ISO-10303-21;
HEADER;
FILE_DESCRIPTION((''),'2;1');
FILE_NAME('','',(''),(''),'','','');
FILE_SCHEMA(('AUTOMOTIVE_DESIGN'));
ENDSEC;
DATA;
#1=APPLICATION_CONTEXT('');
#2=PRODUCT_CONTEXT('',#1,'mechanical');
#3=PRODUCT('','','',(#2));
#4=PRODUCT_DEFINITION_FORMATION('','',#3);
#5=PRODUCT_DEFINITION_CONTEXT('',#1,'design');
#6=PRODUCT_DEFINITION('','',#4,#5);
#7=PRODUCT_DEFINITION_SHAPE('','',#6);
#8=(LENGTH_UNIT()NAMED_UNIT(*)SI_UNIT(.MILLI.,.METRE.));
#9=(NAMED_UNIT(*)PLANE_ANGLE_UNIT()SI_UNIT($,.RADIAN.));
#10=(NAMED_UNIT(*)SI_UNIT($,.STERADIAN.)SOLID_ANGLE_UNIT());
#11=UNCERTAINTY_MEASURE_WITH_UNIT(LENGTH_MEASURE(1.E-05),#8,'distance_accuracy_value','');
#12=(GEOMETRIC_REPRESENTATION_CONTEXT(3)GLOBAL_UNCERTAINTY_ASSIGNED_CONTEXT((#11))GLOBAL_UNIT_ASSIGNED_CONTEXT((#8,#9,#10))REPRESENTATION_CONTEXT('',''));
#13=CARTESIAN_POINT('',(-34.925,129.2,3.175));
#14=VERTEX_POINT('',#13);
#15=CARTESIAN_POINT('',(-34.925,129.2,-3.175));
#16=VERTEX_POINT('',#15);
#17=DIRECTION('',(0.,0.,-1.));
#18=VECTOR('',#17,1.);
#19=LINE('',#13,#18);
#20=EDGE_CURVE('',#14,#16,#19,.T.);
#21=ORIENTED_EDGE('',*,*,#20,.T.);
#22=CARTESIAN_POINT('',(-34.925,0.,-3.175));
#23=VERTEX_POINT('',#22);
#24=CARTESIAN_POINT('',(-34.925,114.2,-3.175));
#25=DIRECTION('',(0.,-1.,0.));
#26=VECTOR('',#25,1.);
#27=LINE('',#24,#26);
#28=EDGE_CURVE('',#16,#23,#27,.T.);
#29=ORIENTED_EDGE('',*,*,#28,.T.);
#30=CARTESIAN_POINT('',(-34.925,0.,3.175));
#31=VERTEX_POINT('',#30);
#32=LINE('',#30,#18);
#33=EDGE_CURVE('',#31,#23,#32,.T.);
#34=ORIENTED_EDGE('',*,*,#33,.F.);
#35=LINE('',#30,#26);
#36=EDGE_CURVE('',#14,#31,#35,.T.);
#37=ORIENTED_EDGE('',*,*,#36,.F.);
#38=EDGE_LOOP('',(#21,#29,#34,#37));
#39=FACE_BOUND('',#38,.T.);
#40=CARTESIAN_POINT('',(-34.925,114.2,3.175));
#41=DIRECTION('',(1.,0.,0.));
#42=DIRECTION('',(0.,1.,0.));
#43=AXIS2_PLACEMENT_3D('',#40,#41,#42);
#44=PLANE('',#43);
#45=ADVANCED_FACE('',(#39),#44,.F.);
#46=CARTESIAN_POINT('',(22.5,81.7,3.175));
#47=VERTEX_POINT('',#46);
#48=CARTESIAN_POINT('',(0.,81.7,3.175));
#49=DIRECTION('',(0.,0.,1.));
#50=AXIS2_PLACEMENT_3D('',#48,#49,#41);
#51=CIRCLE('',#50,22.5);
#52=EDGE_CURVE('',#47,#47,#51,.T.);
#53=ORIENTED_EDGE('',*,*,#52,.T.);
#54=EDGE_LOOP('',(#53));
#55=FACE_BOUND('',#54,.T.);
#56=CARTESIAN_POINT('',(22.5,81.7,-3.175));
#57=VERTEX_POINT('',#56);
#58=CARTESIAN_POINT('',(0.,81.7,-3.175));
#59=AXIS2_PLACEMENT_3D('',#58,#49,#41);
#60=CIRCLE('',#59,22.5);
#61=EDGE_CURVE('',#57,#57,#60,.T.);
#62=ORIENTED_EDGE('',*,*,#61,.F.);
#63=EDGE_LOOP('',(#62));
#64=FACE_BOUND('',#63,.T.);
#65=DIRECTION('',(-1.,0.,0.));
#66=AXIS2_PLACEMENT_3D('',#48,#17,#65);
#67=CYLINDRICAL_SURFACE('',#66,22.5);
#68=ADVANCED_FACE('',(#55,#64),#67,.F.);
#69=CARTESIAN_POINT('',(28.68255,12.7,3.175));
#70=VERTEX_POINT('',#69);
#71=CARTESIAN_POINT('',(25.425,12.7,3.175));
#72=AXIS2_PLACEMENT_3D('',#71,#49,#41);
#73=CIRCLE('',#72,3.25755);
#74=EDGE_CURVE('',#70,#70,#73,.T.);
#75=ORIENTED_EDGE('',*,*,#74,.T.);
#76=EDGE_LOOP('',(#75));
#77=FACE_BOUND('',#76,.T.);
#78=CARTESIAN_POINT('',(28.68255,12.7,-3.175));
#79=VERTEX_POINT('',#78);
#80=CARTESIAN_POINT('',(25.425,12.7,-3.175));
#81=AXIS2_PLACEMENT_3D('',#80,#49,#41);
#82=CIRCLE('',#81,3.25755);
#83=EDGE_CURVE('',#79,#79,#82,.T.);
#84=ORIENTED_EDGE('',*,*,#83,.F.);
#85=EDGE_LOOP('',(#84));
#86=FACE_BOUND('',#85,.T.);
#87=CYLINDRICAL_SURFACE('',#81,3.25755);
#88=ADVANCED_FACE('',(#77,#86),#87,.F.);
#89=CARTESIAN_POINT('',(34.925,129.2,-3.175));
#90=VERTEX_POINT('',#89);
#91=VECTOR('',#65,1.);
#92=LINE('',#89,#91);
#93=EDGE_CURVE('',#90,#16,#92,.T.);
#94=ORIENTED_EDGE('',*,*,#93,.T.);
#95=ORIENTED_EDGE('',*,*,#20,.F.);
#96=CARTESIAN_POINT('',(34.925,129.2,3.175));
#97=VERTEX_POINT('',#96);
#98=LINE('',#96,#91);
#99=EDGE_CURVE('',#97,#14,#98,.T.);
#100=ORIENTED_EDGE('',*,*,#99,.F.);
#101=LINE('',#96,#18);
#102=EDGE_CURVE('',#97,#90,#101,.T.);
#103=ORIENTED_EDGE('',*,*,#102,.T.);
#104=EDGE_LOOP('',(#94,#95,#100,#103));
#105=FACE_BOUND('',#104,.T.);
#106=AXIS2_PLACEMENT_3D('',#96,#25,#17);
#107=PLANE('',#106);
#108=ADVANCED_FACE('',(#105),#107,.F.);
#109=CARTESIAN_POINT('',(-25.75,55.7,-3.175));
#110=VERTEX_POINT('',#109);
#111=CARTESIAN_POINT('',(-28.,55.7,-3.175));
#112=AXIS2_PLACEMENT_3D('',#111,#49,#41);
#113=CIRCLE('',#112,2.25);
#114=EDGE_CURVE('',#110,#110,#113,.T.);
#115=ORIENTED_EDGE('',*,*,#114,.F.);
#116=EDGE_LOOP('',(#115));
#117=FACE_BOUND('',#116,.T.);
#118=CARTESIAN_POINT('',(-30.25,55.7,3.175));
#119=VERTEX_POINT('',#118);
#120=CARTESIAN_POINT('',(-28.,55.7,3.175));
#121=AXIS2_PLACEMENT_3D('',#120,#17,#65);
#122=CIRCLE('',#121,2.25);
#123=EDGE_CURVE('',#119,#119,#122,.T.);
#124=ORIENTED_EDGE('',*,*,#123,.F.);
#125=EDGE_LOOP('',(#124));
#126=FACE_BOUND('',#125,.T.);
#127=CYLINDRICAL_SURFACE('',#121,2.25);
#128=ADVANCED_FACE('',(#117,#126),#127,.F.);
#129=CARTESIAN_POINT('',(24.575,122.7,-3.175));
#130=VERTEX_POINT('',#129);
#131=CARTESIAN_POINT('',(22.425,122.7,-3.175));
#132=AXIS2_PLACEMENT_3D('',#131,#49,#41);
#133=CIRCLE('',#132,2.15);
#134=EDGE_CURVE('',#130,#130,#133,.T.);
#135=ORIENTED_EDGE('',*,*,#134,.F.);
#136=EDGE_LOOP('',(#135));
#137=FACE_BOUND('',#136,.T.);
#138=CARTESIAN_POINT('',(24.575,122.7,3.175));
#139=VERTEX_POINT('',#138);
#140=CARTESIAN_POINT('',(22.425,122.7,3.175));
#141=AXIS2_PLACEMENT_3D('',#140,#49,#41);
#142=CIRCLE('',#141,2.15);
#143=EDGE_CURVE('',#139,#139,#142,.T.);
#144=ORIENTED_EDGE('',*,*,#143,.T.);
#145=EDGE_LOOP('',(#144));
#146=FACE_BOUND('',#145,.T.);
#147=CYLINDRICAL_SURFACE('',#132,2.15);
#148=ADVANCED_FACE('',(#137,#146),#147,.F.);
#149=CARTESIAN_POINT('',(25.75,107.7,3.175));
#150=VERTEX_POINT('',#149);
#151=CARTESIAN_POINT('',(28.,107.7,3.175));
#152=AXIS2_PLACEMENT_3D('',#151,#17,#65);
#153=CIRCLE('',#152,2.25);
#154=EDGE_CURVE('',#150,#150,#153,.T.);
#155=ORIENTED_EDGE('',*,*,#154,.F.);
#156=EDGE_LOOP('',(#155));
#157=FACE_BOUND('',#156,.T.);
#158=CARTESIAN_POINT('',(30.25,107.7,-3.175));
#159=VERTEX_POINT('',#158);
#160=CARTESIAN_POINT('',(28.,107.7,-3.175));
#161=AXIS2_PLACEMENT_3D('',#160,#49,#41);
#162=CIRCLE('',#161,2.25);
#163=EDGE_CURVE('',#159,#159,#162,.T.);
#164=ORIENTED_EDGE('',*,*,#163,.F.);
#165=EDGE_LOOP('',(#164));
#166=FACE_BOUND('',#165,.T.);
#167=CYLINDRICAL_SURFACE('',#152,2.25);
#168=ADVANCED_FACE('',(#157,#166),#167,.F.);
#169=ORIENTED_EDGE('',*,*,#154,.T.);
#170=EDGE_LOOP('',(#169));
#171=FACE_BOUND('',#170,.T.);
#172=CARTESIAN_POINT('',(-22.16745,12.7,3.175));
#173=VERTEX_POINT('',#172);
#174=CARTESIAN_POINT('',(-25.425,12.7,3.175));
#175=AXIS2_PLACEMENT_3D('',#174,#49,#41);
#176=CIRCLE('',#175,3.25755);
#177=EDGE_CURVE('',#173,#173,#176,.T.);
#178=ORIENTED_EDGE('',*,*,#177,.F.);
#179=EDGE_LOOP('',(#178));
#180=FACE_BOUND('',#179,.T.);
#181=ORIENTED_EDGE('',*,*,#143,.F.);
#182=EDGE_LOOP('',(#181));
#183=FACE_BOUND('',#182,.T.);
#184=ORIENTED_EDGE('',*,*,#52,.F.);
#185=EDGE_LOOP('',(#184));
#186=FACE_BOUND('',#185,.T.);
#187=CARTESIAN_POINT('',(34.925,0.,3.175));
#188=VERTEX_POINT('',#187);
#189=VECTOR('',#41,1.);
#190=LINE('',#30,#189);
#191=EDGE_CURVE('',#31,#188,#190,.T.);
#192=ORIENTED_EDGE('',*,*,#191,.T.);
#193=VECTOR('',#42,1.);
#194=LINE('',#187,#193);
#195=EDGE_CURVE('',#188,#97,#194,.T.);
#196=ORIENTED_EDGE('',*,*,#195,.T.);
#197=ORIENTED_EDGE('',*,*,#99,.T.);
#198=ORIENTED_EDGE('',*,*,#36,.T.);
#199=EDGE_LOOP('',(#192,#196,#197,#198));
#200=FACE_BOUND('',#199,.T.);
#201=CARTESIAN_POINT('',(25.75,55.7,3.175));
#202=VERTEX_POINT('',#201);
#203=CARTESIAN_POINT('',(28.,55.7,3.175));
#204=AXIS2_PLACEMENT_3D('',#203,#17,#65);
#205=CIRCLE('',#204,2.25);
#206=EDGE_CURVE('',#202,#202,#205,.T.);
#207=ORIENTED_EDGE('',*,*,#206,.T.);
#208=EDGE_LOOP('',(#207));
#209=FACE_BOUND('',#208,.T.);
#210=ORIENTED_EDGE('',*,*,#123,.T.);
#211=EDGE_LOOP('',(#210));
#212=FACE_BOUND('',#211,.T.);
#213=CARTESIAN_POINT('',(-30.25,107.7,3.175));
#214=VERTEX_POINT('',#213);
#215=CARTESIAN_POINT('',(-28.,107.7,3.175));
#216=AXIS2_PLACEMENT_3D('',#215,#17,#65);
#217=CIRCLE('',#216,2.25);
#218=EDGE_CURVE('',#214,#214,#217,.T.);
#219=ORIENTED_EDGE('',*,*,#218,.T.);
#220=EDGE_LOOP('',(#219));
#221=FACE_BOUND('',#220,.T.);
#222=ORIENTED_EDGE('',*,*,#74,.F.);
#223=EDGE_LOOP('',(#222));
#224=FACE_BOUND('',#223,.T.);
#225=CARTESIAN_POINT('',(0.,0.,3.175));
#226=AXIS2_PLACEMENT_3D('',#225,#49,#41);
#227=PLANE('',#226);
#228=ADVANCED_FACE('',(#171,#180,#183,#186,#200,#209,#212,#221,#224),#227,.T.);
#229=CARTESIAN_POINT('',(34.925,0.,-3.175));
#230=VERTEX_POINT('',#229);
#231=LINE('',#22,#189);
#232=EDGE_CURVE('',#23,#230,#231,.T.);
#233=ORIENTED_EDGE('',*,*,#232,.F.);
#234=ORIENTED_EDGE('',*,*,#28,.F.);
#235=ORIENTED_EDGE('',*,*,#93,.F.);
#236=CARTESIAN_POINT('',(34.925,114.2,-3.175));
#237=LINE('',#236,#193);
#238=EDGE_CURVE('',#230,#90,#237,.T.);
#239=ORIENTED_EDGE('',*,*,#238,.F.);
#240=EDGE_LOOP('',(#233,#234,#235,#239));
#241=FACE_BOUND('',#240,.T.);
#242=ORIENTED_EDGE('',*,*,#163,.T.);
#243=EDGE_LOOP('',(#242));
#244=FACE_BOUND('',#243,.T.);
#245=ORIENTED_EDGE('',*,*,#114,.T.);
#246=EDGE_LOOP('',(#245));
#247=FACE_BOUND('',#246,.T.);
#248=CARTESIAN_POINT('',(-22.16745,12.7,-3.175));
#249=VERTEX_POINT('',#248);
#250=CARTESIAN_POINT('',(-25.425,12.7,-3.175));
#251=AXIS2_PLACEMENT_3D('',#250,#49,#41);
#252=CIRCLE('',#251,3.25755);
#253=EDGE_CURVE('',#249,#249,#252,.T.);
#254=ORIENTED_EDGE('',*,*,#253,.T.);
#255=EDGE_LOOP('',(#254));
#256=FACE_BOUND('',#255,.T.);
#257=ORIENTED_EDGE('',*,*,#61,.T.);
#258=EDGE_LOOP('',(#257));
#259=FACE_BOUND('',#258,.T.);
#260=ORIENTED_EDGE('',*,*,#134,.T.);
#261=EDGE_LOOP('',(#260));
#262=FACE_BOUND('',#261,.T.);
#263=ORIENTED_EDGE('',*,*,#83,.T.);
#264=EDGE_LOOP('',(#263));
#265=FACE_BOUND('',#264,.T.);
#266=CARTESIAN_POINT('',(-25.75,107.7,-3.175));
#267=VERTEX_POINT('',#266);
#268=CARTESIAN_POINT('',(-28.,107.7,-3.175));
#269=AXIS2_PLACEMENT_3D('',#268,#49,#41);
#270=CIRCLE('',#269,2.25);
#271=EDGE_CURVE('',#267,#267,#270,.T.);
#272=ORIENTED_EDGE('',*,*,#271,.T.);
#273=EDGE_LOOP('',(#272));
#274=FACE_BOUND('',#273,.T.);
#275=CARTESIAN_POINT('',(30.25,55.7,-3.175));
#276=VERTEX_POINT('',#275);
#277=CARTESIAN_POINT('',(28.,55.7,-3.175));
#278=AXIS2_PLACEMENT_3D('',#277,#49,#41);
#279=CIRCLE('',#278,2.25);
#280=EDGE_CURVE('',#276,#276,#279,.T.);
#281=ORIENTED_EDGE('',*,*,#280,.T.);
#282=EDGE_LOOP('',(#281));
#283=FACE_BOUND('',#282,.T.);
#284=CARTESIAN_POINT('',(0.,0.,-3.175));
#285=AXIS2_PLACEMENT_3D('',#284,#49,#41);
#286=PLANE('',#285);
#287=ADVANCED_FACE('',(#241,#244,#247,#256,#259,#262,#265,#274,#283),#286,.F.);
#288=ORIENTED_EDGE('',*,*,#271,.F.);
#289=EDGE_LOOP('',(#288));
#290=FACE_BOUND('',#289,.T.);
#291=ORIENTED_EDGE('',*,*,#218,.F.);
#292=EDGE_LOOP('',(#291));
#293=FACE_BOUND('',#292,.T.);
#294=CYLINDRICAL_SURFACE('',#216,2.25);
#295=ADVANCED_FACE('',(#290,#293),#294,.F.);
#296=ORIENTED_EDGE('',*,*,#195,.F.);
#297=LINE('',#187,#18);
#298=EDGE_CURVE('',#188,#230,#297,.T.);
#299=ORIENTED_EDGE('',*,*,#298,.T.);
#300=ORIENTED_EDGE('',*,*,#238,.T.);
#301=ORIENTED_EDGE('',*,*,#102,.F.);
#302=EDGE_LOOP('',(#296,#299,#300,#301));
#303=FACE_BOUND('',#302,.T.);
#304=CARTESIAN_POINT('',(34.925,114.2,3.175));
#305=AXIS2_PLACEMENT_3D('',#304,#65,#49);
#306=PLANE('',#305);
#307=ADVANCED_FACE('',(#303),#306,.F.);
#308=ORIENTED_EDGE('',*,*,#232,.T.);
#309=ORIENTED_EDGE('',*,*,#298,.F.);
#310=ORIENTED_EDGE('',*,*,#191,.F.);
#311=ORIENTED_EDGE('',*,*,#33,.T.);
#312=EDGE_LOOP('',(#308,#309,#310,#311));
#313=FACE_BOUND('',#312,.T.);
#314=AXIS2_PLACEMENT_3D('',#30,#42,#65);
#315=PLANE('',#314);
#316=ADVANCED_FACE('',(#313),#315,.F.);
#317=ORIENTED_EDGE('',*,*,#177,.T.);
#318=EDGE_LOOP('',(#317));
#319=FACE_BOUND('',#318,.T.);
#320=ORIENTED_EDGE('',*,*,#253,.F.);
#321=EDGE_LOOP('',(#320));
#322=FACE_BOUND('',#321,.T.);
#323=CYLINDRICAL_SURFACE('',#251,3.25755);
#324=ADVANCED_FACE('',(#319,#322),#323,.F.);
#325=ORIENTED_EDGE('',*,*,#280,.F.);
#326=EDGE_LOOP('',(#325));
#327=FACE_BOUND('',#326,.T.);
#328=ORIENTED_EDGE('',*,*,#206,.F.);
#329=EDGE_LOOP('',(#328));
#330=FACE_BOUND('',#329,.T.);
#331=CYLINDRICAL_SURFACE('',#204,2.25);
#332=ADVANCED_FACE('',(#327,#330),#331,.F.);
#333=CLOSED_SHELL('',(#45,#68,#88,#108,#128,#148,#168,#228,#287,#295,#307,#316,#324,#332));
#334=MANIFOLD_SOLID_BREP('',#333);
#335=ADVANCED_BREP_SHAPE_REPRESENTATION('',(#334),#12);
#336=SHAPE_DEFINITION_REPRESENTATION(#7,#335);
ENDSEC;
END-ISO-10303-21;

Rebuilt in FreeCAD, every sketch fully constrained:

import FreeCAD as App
import Part
import Sketcher
from FreeCAD import Vector
Q = App.Units.Quantity


def add_polygon(sketch, points):
    """Adds a closed chain of lines whose ends are joined by coincident constraints."""
    first, n = sketch.GeometryCount, len(points)
    for a, b in zip(points, points[1:] + points[:1]):
        sketch.addGeometry(Part.LineSegment(App.Vector(*a, 0), App.Vector(*b, 0)), False)
    for i in range(n):
        sketch.addConstraint(Sketcher.Constraint("Coincident", first + i, 2, first + (i + 1) % n, 1))

doc = App.newDocument("Part")
body = doc.addObject("PartDesign::Body", "Body")

# Sketch on XY plane
sketch1 = doc.addObject("Sketcher::SketchObject", "Sketch")
body.addObject(sketch1)
sketch1.AttachmentSupport = (doc.XY_Plane, [""])
sketch1.MapMode = "FlatFace"
add_polygon(sketch1, [(-35, 0), (35, 0), (35, 129), (-35, 129)])  # lines 0-3
sketch1.addGeometry(Part.Circle(Vector(0, 82, 0), Vector(0, 0, 1), 22), False)  # 4
sketch1.addConstraint(Sketcher.Constraint("Horizontal", 0))
sketch1.addConstraint(Sketcher.Constraint("Vertical", 1))
sketch1.addConstraint(Sketcher.Constraint("Horizontal", 2))
sketch1.addConstraint(Sketcher.Constraint("Vertical", 3))
sketch1.addConstraint(Sketcher.Constraint("Symmetric", 0, 2, 3, 2, -1, 1))
sketch1.addConstraint(Sketcher.Constraint("PointOnObject", 4, 3, -2))
sketch1.addConstraint(Sketcher.Constraint("Diameter", 4, Q("45 mm")))
sketch1.addConstraint(Sketcher.Constraint("DistanceY", 1, 1, 1, 2, Q("129.2 mm")))
sketch1.addConstraint(Sketcher.Constraint("DistanceX", 0, 1, 0, 2, Q("69.85 mm")))
sketch1.addConstraint(Sketcher.Constraint("DistanceY", -1, 1, 4, 3, Q("81.7 mm")))
pad1 = doc.addObject("PartDesign::Pad", "Pad")
body.addObject(pad1)
pad1.Profile = sketch1
pad1.Length = 6.35
pad1.Midplane = True

# Sketch on XY plane
sketch2 = doc.addObject("Sketcher::SketchObject", "Sketch001")
body.addObject(sketch2)
sketch2.AttachmentSupport = (doc.XY_Plane, [""])
sketch2.MapMode = "FlatFace"
sketch2.AttachmentOffset = App.Placement(Vector(0, 0, 3.175), App.Rotation())
sketch2.addGeometry(Part.Circle(Vector(-25.4, 12.7, 0), Vector(0, 0, 1), 3.3), False)
sketch2.addGeometry(Part.Circle(Vector(25.4, 12.7, 0), Vector(0, 0, 1), 3.3), False)
sketch2.addGeometry(Part.Circle(Vector(22.4, 122.7, 0), Vector(0, 0, 1), 2.1), False)
sketch2.addConstraint(Sketcher.Constraint("Equal", 0, 1))
sketch2.addConstraint(Sketcher.Constraint("Symmetric", 0, 3, 1, 3, -2))
sketch2.addConstraint(Sketcher.Constraint("Diameter", 2, Q("4.3 mm")))
sketch2.addConstraint(Sketcher.Constraint("DistanceX", 2, 3, 1, 3, Q("3 mm")))
sketch2.addConstraint(Sketcher.Constraint("DistanceY", 1, 3, 2, 3, Q("110 mm")))
sketch2.addConstraint(Sketcher.Constraint("Diameter", 0, Q("6.5151 mm")))
sketch2.addConstraint(Sketcher.Constraint("DistanceY", -1, 1, 0, 3, Q("12.7 mm")))
sketch2.addConstraint(Sketcher.Constraint("DistanceX", 0, 3, 1, 3, Q("50.85 mm")))
pocket1 = doc.addObject("PartDesign::Pocket", "Pocket")
body.addObject(pocket1)
pocket1.Profile = sketch2
pocket1.Type = "ThroughAll"
pocket1.Midplane = True

# Sketch on XY plane
sketch3 = doc.addObject("Sketcher::SketchObject", "Sketch002")
body.addObject(sketch3)
sketch3.AttachmentSupport = (doc.XY_Plane, [""])
sketch3.MapMode = "FlatFace"
sketch3.AttachmentOffset = App.Placement(Vector(0, 0, -3.175), App.Rotation())
sketch3.addGeometry(Part.Circle(Vector(28, 107.7, 0), Vector(0, 0, 1), 2.2), False)
sketch3.addGeometry(Part.Circle(Vector(-28, 107.7, 0), Vector(0, 0, 1), 2.2), False)
sketch3.addGeometry(Part.Circle(Vector(28, 55.7, 0), Vector(0, 0, 1), 2.2), False)
sketch3.addGeometry(Part.Circle(Vector(-28, 55.7, 0), Vector(0, 0, 1), 2.2), False)
sketch3.addConstraint(Sketcher.Constraint("Equal", 0, 1))
sketch3.addConstraint(Sketcher.Constraint("Equal", 1, 2))
sketch3.addConstraint(Sketcher.Constraint("Equal", 2, 3))
sketch3.addConstraint(Sketcher.Constraint("Symmetric", 0, 3, 1, 3, -2))
sketch3.addConstraint(Sketcher.Constraint("Symmetric", 2, 3, 3, 3, -2))
sketch3.addConstraint(Sketcher.Constraint("Vertical", 0, 3, 2, 3))
sketch3.addConstraint(Sketcher.Constraint("Diameter", 0, Q("4.5 mm")))
sketch3.addConstraint(Sketcher.Constraint("DistanceX", -1, 1, 0, 3, Q("28 mm")))
sketch3.addConstraint(Sketcher.Constraint("DistanceY", 2, 3, 0, 3, Q("52 mm")))
sketch3.addConstraint(Sketcher.Constraint("DistanceY", -1, 1, 0, 3, Q("107.7 mm")))
pocket2 = doc.addObject("PartDesign::Pocket", "Pocket001")
body.addObject(pocket2)
pocket2.Profile = sketch3
pocket2.Type = "ThroughAll"
pocket2.Midplane = True

doc.recompute()
